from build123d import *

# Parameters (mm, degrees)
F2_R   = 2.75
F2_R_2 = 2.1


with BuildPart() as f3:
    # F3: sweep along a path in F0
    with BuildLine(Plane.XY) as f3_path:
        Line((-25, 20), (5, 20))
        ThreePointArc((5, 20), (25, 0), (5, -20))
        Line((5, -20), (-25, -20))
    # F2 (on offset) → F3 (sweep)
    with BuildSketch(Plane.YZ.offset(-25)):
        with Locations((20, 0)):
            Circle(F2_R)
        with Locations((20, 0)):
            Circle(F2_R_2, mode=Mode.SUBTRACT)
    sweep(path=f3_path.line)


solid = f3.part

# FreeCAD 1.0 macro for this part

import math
import FreeCAD as App
import Part
import Sketcher
from FreeCAD import Vector
Q = App.Units.Quantity

doc = App.newDocument("Part")
body = doc.addObject("PartDesign::Body", "Body")

sketch1 = body.newObject("Sketcher::SketchObject", "Sketch")
sketch1.AttachmentSupport = (doc.getObject("YZ_Plane"), [""])
sketch1.MapMode = "FlatFace"
sketch1.AttachmentOffset = App.Placement(Vector(0, 0, -25), App.Rotation())
sketch1.addGeometry([
    Part.Circle(Vector(20, 0, 0), Vector(0, 0, 1), 2.8),
    Part.Circle(Vector(20, 0, 0), Vector(0, 0, 1), 2.1),
], False)
sketch1.addConstraint([
    Sketcher.Constraint("Coincident", 1, 3, 0, 3),
    Sketcher.Constraint("PointOnObject", 0, 3, -1),
    Sketcher.Constraint("Diameter", 0, Q("5.5 mm")),
    Sketcher.Constraint("Diameter", 1, Q("4.2 mm")),
    Sketcher.Constraint("DistanceX", -1, 1, 0, 3, Q("20 mm")),
])

sketch2 = body.newObject("Sketcher::SketchObject", "Sketch001")
sketch2.AttachmentSupport = (doc.getObject("XY_Plane"), [""])
sketch2.MapMode = "FlatFace"
sketch2.addGeometry([
    Part.LineSegment(Vector(-25, 20, 0), Vector(5, 20, 0)),
    Part.ArcOfCircle(Part.Circle(Vector(5, 0, 0), Vector(0, 0, 1), 20), math.radians(-90), math.radians(90)),
    Part.LineSegment(Vector(5, -20, 0), Vector(-25, -20, 0)),
], False)
sketch2.addConstraint([
    Sketcher.Constraint("Tangent", 0, 2, 1, 2),
    Sketcher.Constraint("Tangent", 1, 1, 2, 1),
    Sketcher.Constraint("Horizontal", 0),
    Sketcher.Constraint("Horizontal", 2),
    Sketcher.Constraint("Symmetric", 0, 1, 2, 2, -1),
    Sketcher.Constraint("Radius", 1, Q("20 mm")),
    Sketcher.Constraint("DistanceX", 0, 1, 0, 2, Q("30 mm")),
    Sketcher.Constraint("DistanceX", -1, 1, 1, 3, Q("5 mm")),
])
doc.recompute()

additivepipe = body.newObject("PartDesign::AdditivePipe", "AdditivePipe")
additivepipe.Profile = sketch1
additivepipe.Spine = (sketch2, ["Edge1", "Edge2", "Edge3"])

doc.recompute()
